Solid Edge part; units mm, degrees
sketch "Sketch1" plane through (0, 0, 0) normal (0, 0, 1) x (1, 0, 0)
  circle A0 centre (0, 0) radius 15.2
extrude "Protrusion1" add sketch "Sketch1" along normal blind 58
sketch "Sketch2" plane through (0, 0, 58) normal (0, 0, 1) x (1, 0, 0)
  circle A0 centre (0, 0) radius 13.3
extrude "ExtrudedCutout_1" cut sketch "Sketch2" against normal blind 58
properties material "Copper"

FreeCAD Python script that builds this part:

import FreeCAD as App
import Part
import Sketcher

V = App.Vector
Q = App.Units.Quantity

doc = App.newDocument("Part")
body = doc.addObject("PartDesign::Body", "Body")

sketch1 = doc.addObject("Sketcher::SketchObject", "Sketch")
body.addObject(sketch1)
sketch1.AttachmentSupport = (doc.XY_Plane, [""])
sketch1.MapMode = "FlatFace"
sketch1.addGeometry(Part.Circle(V(0, 0, 0), V(0, 0, 1), 15.2), False)
sketch1.addConstraint(Sketcher.Constraint("Coincident", 0, 3, -1, 1))
sketch1.addConstraint(Sketcher.Constraint("Diameter", 0, Q("30.4 mm")))
pad1 = doc.addObject("PartDesign::Pad", "Pad")
body.addObject(pad1)
pad1.Profile = sketch1
pad1.Length = 58

sketch2 = doc.addObject("Sketcher::SketchObject", "Sketch001")
body.addObject(sketch2)
sketch2.AttachmentSupport = (doc.XY_Plane, [""])
sketch2.MapMode = "FlatFace"
sketch2.AttachmentOffset = App.Placement(V(0, 0, 58), App.Rotation())
sketch2.addGeometry(Part.Circle(V(0, 0, 0), V(0, 0, 1), 13.3), False)
sketch2.addConstraint(Sketcher.Constraint("Coincident", 0, 3, -1, 1))
sketch2.addConstraint(Sketcher.Constraint("Diameter", 0, Q("26.6 mm")))
pocket1 = doc.addObject("PartDesign::Pocket", "Pocket")
body.addObject(pocket1)
pocket1.Profile = sketch2
pocket1.Length = 58

doc.recompute()
